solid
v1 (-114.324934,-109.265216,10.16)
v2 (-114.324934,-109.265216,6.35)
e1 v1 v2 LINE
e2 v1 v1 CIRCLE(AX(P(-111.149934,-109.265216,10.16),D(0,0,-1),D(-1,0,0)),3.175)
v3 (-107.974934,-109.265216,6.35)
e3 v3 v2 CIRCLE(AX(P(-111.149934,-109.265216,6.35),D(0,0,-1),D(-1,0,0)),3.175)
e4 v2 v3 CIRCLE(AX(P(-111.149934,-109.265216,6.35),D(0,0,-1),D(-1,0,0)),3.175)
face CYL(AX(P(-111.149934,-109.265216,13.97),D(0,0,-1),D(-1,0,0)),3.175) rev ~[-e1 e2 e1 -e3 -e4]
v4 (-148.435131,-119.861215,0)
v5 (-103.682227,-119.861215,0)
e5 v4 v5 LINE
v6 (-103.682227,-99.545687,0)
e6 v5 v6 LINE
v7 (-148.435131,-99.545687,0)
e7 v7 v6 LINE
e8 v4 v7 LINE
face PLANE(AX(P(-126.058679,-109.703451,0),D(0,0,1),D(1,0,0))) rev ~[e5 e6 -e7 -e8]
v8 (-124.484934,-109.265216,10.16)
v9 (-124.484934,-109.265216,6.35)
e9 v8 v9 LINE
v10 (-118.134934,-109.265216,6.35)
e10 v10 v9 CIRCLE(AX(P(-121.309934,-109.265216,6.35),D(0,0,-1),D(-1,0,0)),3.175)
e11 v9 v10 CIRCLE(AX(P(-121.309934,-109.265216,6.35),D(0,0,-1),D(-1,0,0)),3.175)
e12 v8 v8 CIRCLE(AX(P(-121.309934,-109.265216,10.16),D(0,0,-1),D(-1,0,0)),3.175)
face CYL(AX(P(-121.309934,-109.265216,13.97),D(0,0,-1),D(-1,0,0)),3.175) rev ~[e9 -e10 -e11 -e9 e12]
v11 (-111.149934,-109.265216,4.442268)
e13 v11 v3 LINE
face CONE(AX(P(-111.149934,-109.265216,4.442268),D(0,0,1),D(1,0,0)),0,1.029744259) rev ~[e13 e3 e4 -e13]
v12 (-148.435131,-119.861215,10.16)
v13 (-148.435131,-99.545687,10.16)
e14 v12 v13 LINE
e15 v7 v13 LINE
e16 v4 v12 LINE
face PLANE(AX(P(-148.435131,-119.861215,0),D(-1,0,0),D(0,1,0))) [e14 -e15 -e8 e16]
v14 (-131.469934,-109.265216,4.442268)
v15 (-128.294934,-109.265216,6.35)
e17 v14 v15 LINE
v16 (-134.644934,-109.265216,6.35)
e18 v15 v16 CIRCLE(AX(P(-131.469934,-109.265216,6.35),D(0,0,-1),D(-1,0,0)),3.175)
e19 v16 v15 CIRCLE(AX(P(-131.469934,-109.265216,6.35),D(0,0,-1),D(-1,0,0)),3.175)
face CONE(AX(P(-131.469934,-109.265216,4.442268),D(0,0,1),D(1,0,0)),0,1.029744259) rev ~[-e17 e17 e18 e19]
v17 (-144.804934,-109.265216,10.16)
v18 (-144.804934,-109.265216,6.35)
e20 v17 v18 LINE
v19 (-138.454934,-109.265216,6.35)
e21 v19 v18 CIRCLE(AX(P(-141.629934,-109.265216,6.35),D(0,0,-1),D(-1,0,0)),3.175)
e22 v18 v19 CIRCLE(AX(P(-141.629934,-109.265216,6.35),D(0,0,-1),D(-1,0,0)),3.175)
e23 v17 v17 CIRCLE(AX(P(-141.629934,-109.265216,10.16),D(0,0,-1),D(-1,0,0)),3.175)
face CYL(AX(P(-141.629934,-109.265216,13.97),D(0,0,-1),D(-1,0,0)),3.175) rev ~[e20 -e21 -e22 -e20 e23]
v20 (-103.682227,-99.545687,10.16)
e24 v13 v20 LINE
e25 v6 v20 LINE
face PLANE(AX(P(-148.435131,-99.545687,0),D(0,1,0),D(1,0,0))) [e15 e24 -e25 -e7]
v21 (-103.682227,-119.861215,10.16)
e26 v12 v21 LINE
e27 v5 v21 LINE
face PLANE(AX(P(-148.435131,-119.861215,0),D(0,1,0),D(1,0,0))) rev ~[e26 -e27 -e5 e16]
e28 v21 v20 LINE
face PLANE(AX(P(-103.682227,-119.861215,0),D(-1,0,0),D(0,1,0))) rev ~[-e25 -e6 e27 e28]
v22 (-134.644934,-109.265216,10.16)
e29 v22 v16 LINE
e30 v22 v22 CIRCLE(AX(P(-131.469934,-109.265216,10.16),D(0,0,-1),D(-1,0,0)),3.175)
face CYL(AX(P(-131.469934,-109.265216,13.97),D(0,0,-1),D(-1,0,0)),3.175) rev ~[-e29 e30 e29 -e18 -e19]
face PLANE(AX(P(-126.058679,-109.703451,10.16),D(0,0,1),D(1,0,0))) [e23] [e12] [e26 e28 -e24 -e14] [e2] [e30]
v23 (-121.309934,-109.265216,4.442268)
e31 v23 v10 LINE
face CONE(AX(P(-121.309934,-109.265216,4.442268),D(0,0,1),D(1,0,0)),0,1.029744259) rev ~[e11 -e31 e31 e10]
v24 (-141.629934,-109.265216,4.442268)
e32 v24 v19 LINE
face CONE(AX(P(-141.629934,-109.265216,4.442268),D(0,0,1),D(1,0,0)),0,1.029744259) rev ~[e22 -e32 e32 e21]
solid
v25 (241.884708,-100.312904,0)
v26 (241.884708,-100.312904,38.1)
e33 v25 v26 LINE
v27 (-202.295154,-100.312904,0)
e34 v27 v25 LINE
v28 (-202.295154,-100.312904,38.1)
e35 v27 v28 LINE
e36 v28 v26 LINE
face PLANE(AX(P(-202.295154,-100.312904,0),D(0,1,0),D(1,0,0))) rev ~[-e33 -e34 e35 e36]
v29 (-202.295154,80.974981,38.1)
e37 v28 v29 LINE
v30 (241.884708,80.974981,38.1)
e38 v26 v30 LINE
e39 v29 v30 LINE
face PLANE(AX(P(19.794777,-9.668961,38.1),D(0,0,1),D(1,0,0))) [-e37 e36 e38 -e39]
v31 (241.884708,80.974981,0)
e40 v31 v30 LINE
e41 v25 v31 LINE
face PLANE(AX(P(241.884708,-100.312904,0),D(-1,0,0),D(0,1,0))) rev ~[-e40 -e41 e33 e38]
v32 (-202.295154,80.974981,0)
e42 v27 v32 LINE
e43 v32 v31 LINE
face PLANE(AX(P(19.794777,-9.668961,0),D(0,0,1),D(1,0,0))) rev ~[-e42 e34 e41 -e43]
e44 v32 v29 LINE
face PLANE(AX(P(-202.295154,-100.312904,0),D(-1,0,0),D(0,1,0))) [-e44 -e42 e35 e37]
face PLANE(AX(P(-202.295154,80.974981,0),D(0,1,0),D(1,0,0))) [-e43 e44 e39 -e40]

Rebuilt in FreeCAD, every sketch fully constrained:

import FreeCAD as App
import Part
import Sketcher
from FreeCAD import Vector
Q = App.Units.Quantity


def add_polygon(sketch, points):
    """Adds a closed chain of lines whose ends are joined by coincident constraints."""
    first, n = sketch.GeometryCount, len(points)
    for a, b in zip(points, points[1:] + points[:1]):
        sketch.addGeometry(Part.LineSegment(App.Vector(*a, 0), App.Vector(*b, 0)), False)
    for i in range(n):
        sketch.addConstraint(Sketcher.Constraint("Coincident", first + i, 2, first + (i + 1) % n, 1))

doc = App.newDocument("Part")
body = doc.addObject("PartDesign::Body", "Body")

# Sketch on XY plane
sketch1 = body.newObject("Sketcher::SketchObject", "Sketch")
sketch1.AttachmentSupport = (doc.getObject("XY_Plane"), [""])
sketch1.MapMode = "FlatFace"
add_polygon(sketch1, [(-202, 81), (-202, -100), (242, -100), (242, 81)])  # lines 0-3
sketch1.addConstraint([
    Sketcher.Constraint("Vertical", 0),
    Sketcher.Constraint("Horizontal", 1),
    Sketcher.Constraint("Vertical", 2),
    Sketcher.Constraint("Horizontal", 3),
    Sketcher.Constraint("DistanceX", 1, 1, 1, 2, Q("444.179863 mm")),
    Sketcher.Constraint("DistanceY", 0, 2, 0, 1, Q("181.287885 mm")),
    Sketcher.Constraint("DistanceX", -1, 1, 1, 2, Q("241.884708 mm")),
    Sketcher.Constraint("DistanceY", -1, 1, 2, 2, Q("80.974981 mm")),
])
pad1 = body.newObject("PartDesign::Pad", "Pad")
pad1.Profile = sketch1
pad1.Length = Q("1.5 in")
body2 = doc.addObject("PartDesign::Body", "Body001")

# Sketch on XY plane
sketch2 = body2.newObject("Sketcher::SketchObject", "Sketch001")
sketch2.AttachmentSupport = (doc.getObject("XY_Plane001"), [""])
sketch2.MapMode = "FlatFace"
add_polygon(sketch2, [(-148, -100), (-148, -120), (-104, -120), (-104, -100)])  # lines 0-3
sketch2.addConstraint([
    Sketcher.Constraint("Vertical", 0),
    Sketcher.Constraint("Horizontal", 1),
    Sketcher.Constraint("Vertical", 2),
    Sketcher.Constraint("Horizontal", 3),
    Sketcher.Constraint("DistanceX", 1, 1, 1, 2, Q("44.752903 mm")),
    Sketcher.Constraint("DistanceY", 0, 2, 0, 1, Q("20.315528 mm")),
    Sketcher.Constraint("DistanceX", 0, 2, -1, 1, Q("148.435131 mm")),
    Sketcher.Constraint("DistanceY", 0, 2, -1, 1, Q("119.861215 mm")),
])
pad2 = body2.newObject("PartDesign::Pad", "Pad001")
pad2.Profile = sketch2
pad2.Length = Q("0.4 in")

# Sketch on XY plane
sketch3 = body2.newObject("Sketcher::SketchObject", "Sketch002")
sketch3.AttachmentSupport = (doc.getObject("XY_Plane001"), [""])
sketch3.MapMode = "FlatFace"
sketch3.AttachmentOffset = App.Placement(Vector(0, 0, 0.4 * 25.4), App.Rotation())
sketch3.addGeometry([
    Part.Circle(Vector(-141.6, -109.3, 0), Vector(0, 0, 1), 3.2),
    Part.Circle(Vector(-131.5, -109.3, 0), Vector(0, 0, 1), 3.2),
    Part.Circle(Vector(-121.3, -109.3, 0), Vector(0, 0, 1), 3.2),
    Part.Circle(Vector(-111.1, -109.3, 0), Vector(0, 0, 1), 3.2),
], False)
sketch3.addConstraint([
    Sketcher.Constraint("Equal", 0, 1),
    Sketcher.Constraint("Equal", 1, 2),
    Sketcher.Constraint("Equal", 2, 3),
    Sketcher.Constraint("Horizontal", 0, 3, 1, 3),
    Sketcher.Constraint("Horizontal", 1, 3, 2, 3),
    Sketcher.Constraint("Horizontal", 2, 3, 3, 3),
    Sketcher.Constraint("Diameter", 0, Q("0.25 in")),
    Sketcher.Constraint("DistanceX", 0, 3, 1, 3, Q("0.4 in")),
    Sketcher.Constraint("DistanceX", 1, 3, 2, 3, Q("0.4 in")),
    Sketcher.Constraint("DistanceX", 2, 3, 3, 3, Q("0.4 in")),
    Sketcher.Constraint("DistanceX", 0, 3, -1, 1, Q("141.629934 mm")),
    Sketcher.Constraint("DistanceY", 0, 3, -1, 1, Q("109.265216 mm")),
])
doc.recompute()
hole = body2.newObject("PartDesign::Hole", "Hole")
hole.Profile = sketch3
hole.ThreadType = "None"
hole.Diameter = Q("0.25 in")
hole.DepthType = "Dimension"
hole.Depth = Q("0.15 in")
hole.DrillPoint = "Angled"
hole.DrillPointAngle = 118

doc.recompute()
